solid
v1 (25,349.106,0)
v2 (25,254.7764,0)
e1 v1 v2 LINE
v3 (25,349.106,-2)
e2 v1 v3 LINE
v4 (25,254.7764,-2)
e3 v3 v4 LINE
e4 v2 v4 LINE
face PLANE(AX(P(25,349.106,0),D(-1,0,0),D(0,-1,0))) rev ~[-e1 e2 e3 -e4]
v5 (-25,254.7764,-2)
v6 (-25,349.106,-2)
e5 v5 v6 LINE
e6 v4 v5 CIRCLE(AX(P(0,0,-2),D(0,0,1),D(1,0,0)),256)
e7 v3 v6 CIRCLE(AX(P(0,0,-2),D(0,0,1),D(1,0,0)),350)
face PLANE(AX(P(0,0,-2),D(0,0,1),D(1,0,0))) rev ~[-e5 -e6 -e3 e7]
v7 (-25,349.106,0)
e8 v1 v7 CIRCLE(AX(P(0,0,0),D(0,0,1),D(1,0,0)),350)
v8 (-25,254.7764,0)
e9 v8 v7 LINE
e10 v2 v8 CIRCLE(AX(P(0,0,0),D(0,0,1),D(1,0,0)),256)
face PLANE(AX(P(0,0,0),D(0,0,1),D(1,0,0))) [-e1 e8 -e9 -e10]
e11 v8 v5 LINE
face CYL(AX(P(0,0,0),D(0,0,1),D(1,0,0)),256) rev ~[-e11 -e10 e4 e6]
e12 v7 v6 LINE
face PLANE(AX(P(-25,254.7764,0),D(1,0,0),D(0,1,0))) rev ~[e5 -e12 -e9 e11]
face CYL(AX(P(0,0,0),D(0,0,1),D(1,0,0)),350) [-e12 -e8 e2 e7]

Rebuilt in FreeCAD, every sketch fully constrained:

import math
import FreeCAD as App
import Part
import Sketcher

V = App.Vector
Q = App.Units.Quantity

doc = App.newDocument("Part")
body = doc.addObject("PartDesign::Body", "Body")

# Sketch on XY plane
sketch1 = doc.addObject("Sketcher::SketchObject", "Sketch")
body.addObject(sketch1)
sketch1.AttachmentSupport = (doc.XY_Plane, [""])
sketch1.MapMode = "FlatFace"
sketch1.addGeometry(Part.ArcOfCircle(Part.Circle(V(0, 0, 0), V(0, 0, 1), 256), math.radians(84.4), math.radians(95.6)), False)
sketch1.addGeometry(Part.LineSegment(V(25, 255, 0), V(25, 349, 0)), False)
sketch1.addGeometry(Part.ArcOfCircle(Part.Circle(V(0, 0, 0), V(0, 0, 1), 350), math.radians(85.9), math.radians(94.1)), False)
sketch1.addGeometry(Part.LineSegment(V(-25, 349, 0), V(-25, 255, 0)), False)
sketch1.addConstraint(Sketcher.Constraint("Coincident", 0, 1, 1, 1))
sketch1.addConstraint(Sketcher.Constraint("Coincident", 1, 2, 2, 1))
sketch1.addConstraint(Sketcher.Constraint("Coincident", 2, 2, 3, 1))
sketch1.addConstraint(Sketcher.Constraint("Coincident", 3, 2, 0, 2))
sketch1.addConstraint(Sketcher.Constraint("Vertical", 1))
sketch1.addConstraint(Sketcher.Constraint("Vertical", 3))
sketch1.addConstraint(Sketcher.Constraint("Coincident", 0, 3, -1, 1))
sketch1.addConstraint(Sketcher.Constraint("Coincident", 2, 3, -1, 1))
sketch1.addConstraint(Sketcher.Constraint("Horizontal", 1, 2, 2, 2))
sketch1.addConstraint(Sketcher.Constraint("Radius", 0, Q("256 mm")))
sketch1.addConstraint(Sketcher.Constraint("Radius", 2, Q("350 mm")))
sketch1.addConstraint(Sketcher.Constraint("DistanceX", 2, 2, 1, 2, Q("50 mm")))
pad1 = doc.addObject("PartDesign::Pad", "Pad")
body.addObject(pad1)
pad1.Profile = sketch1
pad1.Length = 2
pad1.Reversed = True

doc.recompute()
